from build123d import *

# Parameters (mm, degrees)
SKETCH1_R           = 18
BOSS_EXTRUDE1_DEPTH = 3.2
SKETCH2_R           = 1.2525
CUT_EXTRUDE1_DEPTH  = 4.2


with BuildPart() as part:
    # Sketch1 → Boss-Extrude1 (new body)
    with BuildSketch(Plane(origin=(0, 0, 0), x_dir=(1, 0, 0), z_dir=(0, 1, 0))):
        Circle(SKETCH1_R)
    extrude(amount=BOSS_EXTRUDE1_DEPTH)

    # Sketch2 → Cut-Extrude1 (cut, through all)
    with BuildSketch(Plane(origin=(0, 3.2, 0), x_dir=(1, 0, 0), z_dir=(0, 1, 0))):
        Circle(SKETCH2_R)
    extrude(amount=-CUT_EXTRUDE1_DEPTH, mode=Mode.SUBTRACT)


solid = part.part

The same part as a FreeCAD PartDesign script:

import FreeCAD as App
import Part
import Sketcher
Q = App.Units.Quantity

doc = App.newDocument("Part")
body = doc.addObject("PartDesign::Body", "Body")

# Sketch on XZ plane
sketch1 = doc.addObject("Sketcher::SketchObject", "Sketch")
body.addObject(sketch1)
sketch1.AttachmentSupport = (doc.XZ_Plane, [""])
sketch1.MapMode = "FlatFace"
sketch1.addGeometry(Part.Circle(App.Vector(0, 0, 0), App.Vector(0, 0, 1), 18), False)
sketch1.addConstraint([
    Sketcher.Constraint("Coincident", 0, 3, -1, 1),
    Sketcher.Constraint("Diameter", 0, Q("36 mm")),
])
pad1 = doc.addObject("PartDesign::Pad", "Pad")
body.addObject(pad1)
pad1.Profile = sketch1
pad1.Length = 3.2
pad1.Reversed = True

# Sketch on XZ plane
sketch2 = doc.addObject("Sketcher::SketchObject", "Sketch001")
body.addObject(sketch2)
sketch2.AttachmentSupport = (doc.XZ_Plane, [""])
sketch2.MapMode = "FlatFace"
sketch2.AttachmentOffset = App.Placement(App.Vector(0, 0, -3.2), App.Rotation())
sketch2.addGeometry(Part.Circle(App.Vector(0, 0, 0), App.Vector(0, 0, 1), 1.3), False)
sketch2.addConstraint([
    Sketcher.Constraint("Coincident", 0, 3, -1, 1),
    Sketcher.Constraint("Diameter", 0, Q("2.505 mm")),
])
pocket1 = doc.addObject("PartDesign::Pocket", "Pocket")
body.addObject(pocket1)
pocket1.Profile = sketch2
pocket1.Type = "ThroughAll"
pocket1.Reversed = True

doc.recompute()
